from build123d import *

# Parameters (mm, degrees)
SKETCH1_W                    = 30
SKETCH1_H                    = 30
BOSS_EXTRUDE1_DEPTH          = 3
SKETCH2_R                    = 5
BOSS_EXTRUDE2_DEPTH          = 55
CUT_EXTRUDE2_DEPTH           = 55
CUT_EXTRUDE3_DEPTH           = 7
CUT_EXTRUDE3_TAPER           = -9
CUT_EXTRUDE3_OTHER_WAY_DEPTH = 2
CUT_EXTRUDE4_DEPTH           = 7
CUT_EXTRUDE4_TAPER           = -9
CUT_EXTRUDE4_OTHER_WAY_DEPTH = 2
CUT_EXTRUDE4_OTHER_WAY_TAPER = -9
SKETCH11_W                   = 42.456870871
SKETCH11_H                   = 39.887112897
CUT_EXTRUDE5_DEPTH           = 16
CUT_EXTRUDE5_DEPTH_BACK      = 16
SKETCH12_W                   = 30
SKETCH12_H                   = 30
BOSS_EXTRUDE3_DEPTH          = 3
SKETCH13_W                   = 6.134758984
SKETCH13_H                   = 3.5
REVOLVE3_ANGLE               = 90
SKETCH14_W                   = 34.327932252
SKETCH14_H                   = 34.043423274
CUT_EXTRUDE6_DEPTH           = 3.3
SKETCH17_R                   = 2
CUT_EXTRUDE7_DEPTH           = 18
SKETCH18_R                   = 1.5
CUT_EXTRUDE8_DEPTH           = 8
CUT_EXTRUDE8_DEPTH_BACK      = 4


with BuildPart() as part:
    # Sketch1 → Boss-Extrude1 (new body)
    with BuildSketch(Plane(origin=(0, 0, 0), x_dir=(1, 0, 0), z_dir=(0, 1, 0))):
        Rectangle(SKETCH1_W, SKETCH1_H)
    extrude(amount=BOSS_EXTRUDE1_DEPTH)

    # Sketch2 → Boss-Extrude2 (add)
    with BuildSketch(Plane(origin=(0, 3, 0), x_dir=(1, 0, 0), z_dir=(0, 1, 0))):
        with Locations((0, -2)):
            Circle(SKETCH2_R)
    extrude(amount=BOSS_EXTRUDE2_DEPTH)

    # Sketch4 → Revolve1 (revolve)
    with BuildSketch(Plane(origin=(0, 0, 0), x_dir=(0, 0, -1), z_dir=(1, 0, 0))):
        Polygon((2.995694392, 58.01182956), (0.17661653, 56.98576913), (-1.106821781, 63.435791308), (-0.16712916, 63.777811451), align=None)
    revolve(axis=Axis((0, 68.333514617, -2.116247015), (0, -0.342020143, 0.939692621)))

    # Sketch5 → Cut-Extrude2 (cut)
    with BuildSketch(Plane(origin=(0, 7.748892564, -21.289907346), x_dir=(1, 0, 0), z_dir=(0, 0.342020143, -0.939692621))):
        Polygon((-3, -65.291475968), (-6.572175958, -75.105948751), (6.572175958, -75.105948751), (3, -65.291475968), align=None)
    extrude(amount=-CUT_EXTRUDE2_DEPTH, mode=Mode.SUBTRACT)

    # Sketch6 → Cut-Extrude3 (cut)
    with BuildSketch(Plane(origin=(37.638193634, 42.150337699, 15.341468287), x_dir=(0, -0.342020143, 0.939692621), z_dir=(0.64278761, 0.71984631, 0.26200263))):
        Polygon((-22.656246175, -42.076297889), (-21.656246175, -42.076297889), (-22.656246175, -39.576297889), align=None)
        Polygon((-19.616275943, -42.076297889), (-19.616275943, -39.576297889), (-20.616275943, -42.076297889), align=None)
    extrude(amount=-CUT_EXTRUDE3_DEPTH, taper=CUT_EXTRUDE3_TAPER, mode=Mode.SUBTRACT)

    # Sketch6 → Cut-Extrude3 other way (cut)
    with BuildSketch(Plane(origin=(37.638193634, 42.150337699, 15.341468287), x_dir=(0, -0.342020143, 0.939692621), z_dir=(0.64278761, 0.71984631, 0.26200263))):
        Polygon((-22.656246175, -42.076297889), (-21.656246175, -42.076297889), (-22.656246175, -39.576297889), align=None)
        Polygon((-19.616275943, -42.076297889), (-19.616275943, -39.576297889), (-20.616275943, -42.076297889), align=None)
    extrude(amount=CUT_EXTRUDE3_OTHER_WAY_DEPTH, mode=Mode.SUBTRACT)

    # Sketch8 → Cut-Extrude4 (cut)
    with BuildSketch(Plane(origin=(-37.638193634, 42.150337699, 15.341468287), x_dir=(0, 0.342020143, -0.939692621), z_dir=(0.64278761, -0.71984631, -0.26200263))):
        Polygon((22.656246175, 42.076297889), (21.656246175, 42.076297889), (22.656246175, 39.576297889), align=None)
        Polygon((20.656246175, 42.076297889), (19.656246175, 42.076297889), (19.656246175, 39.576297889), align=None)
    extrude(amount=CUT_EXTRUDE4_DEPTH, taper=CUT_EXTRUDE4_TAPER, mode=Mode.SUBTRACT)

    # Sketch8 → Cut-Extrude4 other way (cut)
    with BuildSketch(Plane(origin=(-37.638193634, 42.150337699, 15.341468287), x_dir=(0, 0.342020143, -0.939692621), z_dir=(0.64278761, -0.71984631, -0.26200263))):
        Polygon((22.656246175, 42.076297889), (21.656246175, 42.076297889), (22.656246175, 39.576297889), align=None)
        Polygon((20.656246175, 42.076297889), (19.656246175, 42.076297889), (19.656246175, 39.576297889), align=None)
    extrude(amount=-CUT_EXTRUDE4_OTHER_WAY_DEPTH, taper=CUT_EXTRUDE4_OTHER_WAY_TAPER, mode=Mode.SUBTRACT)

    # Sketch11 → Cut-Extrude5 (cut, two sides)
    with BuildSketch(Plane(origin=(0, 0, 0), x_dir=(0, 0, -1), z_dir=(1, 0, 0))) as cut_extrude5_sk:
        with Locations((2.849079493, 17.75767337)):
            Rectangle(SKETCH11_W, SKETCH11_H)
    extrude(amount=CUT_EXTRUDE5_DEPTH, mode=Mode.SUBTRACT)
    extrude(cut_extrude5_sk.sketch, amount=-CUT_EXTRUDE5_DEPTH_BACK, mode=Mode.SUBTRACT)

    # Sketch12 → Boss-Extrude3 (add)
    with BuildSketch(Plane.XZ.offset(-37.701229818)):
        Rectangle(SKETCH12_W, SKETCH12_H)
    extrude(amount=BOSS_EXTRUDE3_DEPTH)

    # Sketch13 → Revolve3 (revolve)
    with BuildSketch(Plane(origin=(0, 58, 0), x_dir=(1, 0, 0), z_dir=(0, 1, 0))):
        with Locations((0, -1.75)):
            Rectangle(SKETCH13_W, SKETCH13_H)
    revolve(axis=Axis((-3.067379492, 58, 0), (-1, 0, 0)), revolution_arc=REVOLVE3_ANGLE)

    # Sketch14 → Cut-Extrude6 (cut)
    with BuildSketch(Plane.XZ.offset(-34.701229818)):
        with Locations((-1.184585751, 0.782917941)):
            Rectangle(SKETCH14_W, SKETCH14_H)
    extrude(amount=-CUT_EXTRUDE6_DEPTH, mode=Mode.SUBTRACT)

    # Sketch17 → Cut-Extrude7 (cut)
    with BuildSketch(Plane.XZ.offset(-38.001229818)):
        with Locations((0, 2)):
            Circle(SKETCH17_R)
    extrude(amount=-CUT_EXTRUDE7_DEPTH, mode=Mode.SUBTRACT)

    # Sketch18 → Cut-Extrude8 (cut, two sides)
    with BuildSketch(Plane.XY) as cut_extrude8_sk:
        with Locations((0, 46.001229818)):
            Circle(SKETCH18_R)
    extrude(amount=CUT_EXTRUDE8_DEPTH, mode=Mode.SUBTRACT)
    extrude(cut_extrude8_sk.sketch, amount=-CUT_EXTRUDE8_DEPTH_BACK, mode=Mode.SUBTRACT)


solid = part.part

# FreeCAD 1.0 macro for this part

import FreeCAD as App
import Part
import Sketcher

V = App.Vector
Q = App.Units.Quantity

doc = App.newDocument("Part")
body = doc.addObject("PartDesign::Body", "Body")

sketch1 = doc.addObject("Sketcher::SketchObject", "Sketch")
body.addObject(sketch1)
sketch1.AttachmentSupport = (doc.XZ_Plane, [""])
sketch1.MapMode = "FlatFace"
sketch1.addGeometry([
    Part.LineSegment(V(-15, -15, 0), V(-15, 15, 0)),
    Part.LineSegment(V(-15, 15, 0), V(15, 15, 0)),
    Part.LineSegment(V(15, 15, 0), V(15, -15, 0)),
    Part.LineSegment(V(15, -15, 0), V(-15, -15, 0)),
], False)
sketch1.addConstraint([
    Sketcher.Constraint("Coincident", 0, 2, 1, 1),
    Sketcher.Constraint("Coincident", 1, 2, 2, 1),
    Sketcher.Constraint("Coincident", 2, 2, 3, 1),
    Sketcher.Constraint("Coincident", 3, 2, 0, 1),
    Sketcher.Constraint("Vertical", 0),
    Sketcher.Constraint("Horizontal", 1),
    Sketcher.Constraint("Vertical", 2),
    Sketcher.Constraint("Horizontal", 3),
    Sketcher.Constraint("Symmetric", 0, 2, 2, 2, -1, 1),
    Sketcher.Constraint("Equal", 3, 0),
    Sketcher.Constraint("DistanceX", 1, 1, 1, 2, Q("30 mm")),
])
pad1 = doc.addObject("PartDesign::Pad", "Pad")
body.addObject(pad1)
pad1.Profile = sketch1
pad1.Length = 3
pad1.Reversed = True

sketch2 = doc.addObject("Sketcher::SketchObject", "Sketch001")
body.addObject(sketch2)
sketch2.AttachmentSupport = (doc.XZ_Plane, [""])
sketch2.MapMode = "FlatFace"
sketch2.AttachmentOffset = App.Placement(V(0, 0, -3), App.Rotation())
sketch2.addGeometry(Part.Circle(V(0, 2, 0), V(0, 0, 1), 5), False)
sketch2.addConstraint([
    Sketcher.Constraint("PointOnObject", 0, 3, -2),
    Sketcher.Constraint("Diameter", 0, Q("10 mm")),
    Sketcher.Constraint("DistanceY", -1, 1, 0, 3, Q("2 mm")),
])
pad2 = doc.addObject("PartDesign::Pad", "Pad001")
body.addObject(pad2)
pad2.Profile = sketch2
pad2.Length = 55
pad2.Reversed = True

sketch3 = doc.addObject("Sketcher::SketchObject", "Sketch002")
body.addObject(sketch3)
sketch3.AttachmentSupport = (doc.YZ_Plane, [""])
sketch3.MapMode = "FlatFace"
sketch3.addGeometry([
    Part.LineSegment(V(57, -0.2, 0), V(58, -3, 0)),
    Part.LineSegment(V(58, -3, 0), V(63.8, 0.2, 0)),
    Part.LineSegment(V(63.8, 0.2, 0), V(63.4, 1.1, 0)),
    Part.LineSegment(V(63.4, 1.1, 0), V(57, -0.2, 0)),
], False)
sketch3.addGeometry(Part.LineSegment(V(67.4, 0.4, 0), V(66.4, 3.2, 0)), True)
sketch3.addConstraint([
    Sketcher.Constraint("Coincident", 0, 2, 1, 1),
    Sketcher.Constraint("Coincident", 1, 2, 2, 1),
    Sketcher.Constraint("Coincident", 2, 2, 3, 1),
    Sketcher.Constraint("Coincident", 3, 2, 0, 1),
    Sketcher.Constraint("Parallel", 0, 2),
    Sketcher.Constraint("Parallel", 2, 4),
    Sketcher.Constraint("Equal", 1, 3),
    Sketcher.Constraint("Equal", 0, 4),
    Sketcher.Constraint("Angle", 0, Q("-70 deg")),
    Sketcher.Constraint("Distance", 0, Q("3 mm")),
    Sketcher.Constraint("Distance", 2, Q("1 mm")),
    Sketcher.Constraint("DistanceY", 0, 2, 4, 1, Q("3.420201 mm")),
    Sketcher.Constraint("DistanceX", -1, 1, 0, 2, Q("58.01183 mm")),
    Sketcher.Constraint("DistanceX", -1, 1, 1, 2, Q("63.777811 mm")),
    Sketcher.Constraint("DistanceY", -1, 1, 1, 2, Q("0.167129 mm")),
    Sketcher.Constraint("DistanceX", -1, 1, 4, 1, Q("67.408756 mm")),
])
revolution = doc.addObject("PartDesign::Revolution", "Revolution")
body.addObject(revolution)
revolution.Profile = sketch3
revolution.ReferenceAxis = (sketch3, ["Axis0"])
revolution.Angle = 360

sketch4 = doc.addObject("Sketcher::SketchObject", "Sketch003")
body.addObject(sketch4)
sketch4.Placement = App.Placement(V(0, 7.748893, -21.289907), App.Rotation(V(1, 0, 0), V(0, -0.939692621, -0.342020143), V(0, 0.342020143, -0.939692621), "ZXY"))
sketch4.addGeometry([
    Part.LineSegment(V(-3, -65, 0), V(-7, -75, 0)),
    Part.LineSegment(V(-7, -75, 0), V(7, -75, 0)),
    Part.LineSegment(V(7, -75, 0), V(3, -65, 0)),
    Part.LineSegment(V(3, -65, 0), V(-3, -65, 0)),
], False)
sketch4.addConstraint([
    Sketcher.Constraint("Coincident", 0, 2, 1, 1),
    Sketcher.Constraint("Coincident", 1, 2, 2, 1),
    Sketcher.Constraint("Coincident", 2, 2, 3, 1),
    Sketcher.Constraint("Coincident", 3, 2, 0, 1),
    Sketcher.Constraint("Horizontal", 1),
    Sketcher.Constraint("Horizontal", 3),
    Sketcher.Constraint("Equal", 0, 2),
    Sketcher.Constraint("DistanceX", 3, 2, 3, 1, Q("6 mm")),
    Sketcher.Constraint("Angle", 0, Q("-110 deg")),
    Sketcher.Constraint("DistanceX", -1, 1, 2, 2, Q("3 mm")),
    Sketcher.Constraint("DistanceX", 1, 1, 1, 2, Q("13.144352 mm")),
    Sketcher.Constraint("DistanceY", 0, 2, -1, 1, Q("75.105949 mm")),
])
pocket1 = doc.addObject("PartDesign::Pocket", "Pocket")
body.addObject(pocket1)
pocket1.Profile = sketch4
pocket1.Length = 55

sketch5 = doc.addObject("Sketcher::SketchObject", "Sketch004")
body.addObject(sketch5)
sketch5.Placement = App.Placement(V(37.638194, 42.150338, 15.341468), App.Rotation(V(0, -0.342020143, 0.939692621), V(0.766044443, -0.604022774, -0.21984631), V(0.64278761, 0.71984631, 0.26200263), "ZXY"))
sketch5.addGeometry([
    Part.LineSegment(V(-22.7, -42.1, 0), V(-21.7, -42.1, 0)),
    Part.LineSegment(V(-21.7, -42.1, 0), V(-22.7, -39.6, 0)),
    Part.LineSegment(V(-22.7, -39.6, 0), V(-22.7, -42.1, 0)),
    Part.LineSegment(V(-19.6, -42.1, 0), V(-19.6, -39.6, 0)),
    Part.LineSegment(V(-19.6, -39.6, 0), V(-20.6, -42.1, 0)),
    Part.LineSegment(V(-20.6, -42.1, 0), V(-19.6, -42.1, 0)),
], False)
sketch5.addConstraint([
    Sketcher.Constraint("Coincident", 0, 2, 1, 1),
    Sketcher.Constraint("Coincident", 1, 2, 2, 1),
    Sketcher.Constraint("Coincident", 2, 2, 0, 1),
    Sketcher.Constraint("Coincident", 3, 2, 4, 1),
    Sketcher.Constraint("Coincident", 4, 2, 5, 1),
    Sketcher.Constraint("Coincident", 5, 2, 3, 1),
    Sketcher.Constraint("Horizontal", 0),
    Sketcher.Constraint("Vertical", 2),
    Sketcher.Constraint("Vertical", 3),
    Sketcher.Constraint("Horizontal", 5),
    Sketcher.Constraint("Horizontal", 1, 2, 3, 2),
    Sketcher.Constraint("Horizontal", 2, 2, 4, 2),
    Sketcher.Constraint("Equal", 0, 5),
    Sketcher.Constraint("DistanceX", 0, 1, 0, 2, Q("1 mm")),
    Sketcher.Constraint("DistanceY", 2, 2, 2, 1, Q("2.5 mm")),
    Sketcher.Constraint("DistanceX", 1, 2, 3, 2, Q("3.03997 mm")),
    Sketcher.Constraint("DistanceX", 0, 2, -1, 1, Q("21.656246 mm")),
    Sketcher.Constraint("DistanceY", 0, 2, -1, 1, Q("42.076298 mm")),
])
pocket2 = doc.addObject("PartDesign::Pocket", "Pocket001")
body.addObject(pocket2)
pocket2.Profile = sketch5
pocket2.Length = 7
pocket2.TaperAngle = 9

sketch6 = doc.addObject("Sketcher::SketchObject", "Sketch005")
body.addObject(sketch6)
sketch6.Placement = App.Placement(V(37.638194, 42.150338, 15.341468), App.Rotation(V(0, -0.342020143, 0.939692621), V(0.766044443, -0.604022774, -0.21984631), V(0.64278761, 0.71984631, 0.26200263), "ZXY"))
sketch6.addGeometry([
    Part.LineSegment(V(-22.7, -42.1, 0), V(-21.7, -42.1, 0)),
    Part.LineSegment(V(-21.7, -42.1, 0), V(-22.7, -39.6, 0)),
    Part.LineSegment(V(-22.7, -39.6, 0), V(-22.7, -42.1, 0)),
    Part.LineSegment(V(-19.6, -42.1, 0), V(-19.6, -39.6, 0)),
    Part.LineSegment(V(-19.6, -39.6, 0), V(-20.6, -42.1, 0)),
    Part.LineSegment(V(-20.6, -42.1, 0), V(-19.6, -42.1, 0)),
], False)
sketch6.addConstraint([
    Sketcher.Constraint("Coincident", 0, 2, 1, 1),
    Sketcher.Constraint("Coincident", 1, 2, 2, 1),
    Sketcher.Constraint("Coincident", 2, 2, 0, 1),
    Sketcher.Constraint("Coincident", 3, 2, 4, 1),
    Sketcher.Constraint("Coincident", 4, 2, 5, 1),
    Sketcher.Constraint("Coincident", 5, 2, 3, 1),
    Sketcher.Constraint("Horizontal", 0),
    Sketcher.Constraint("Vertical", 2),
    Sketcher.Constraint("Vertical", 3),
    Sketcher.Constraint("Horizontal", 5),
    Sketcher.Constraint("Horizontal", 1, 2, 3, 2),
    Sketcher.Constraint("Horizontal", 2, 2, 4, 2),
    Sketcher.Constraint("Equal", 0, 5),
    Sketcher.Constraint("DistanceX", 0, 1, 0, 2, Q("1 mm")),
    Sketcher.Constraint("DistanceY", 2, 2, 2, 1, Q("2.5 mm")),
    Sketcher.Constraint("DistanceX", 1, 2, 3, 2, Q("3.03997 mm")),
    Sketcher.Constraint("DistanceX", 0, 2, -1, 1, Q("21.656246 mm")),
    Sketcher.Constraint("DistanceY", 0, 2, -1, 1, Q("42.076298 mm")),
])
pocket3 = doc.addObject("PartDesign::Pocket", "Pocket002")
body.addObject(pocket3)
pocket3.Profile = sketch6
pocket3.Length = 2
pocket3.Reversed = True

sketch7 = doc.addObject("Sketcher::SketchObject", "Sketch006")
body.addObject(sketch7)
sketch7.Placement = App.Placement(V(-37.638194, 42.150338, 15.341468), App.Rotation(V(0, 0.342020143, -0.939692621), V(0.766044443, 0.604022774, 0.21984631), V(0.64278761, -0.71984631, -0.26200263), "ZXY"))
sketch7.addGeometry([
    Part.LineSegment(V(22.7, 42.1, 0), V(21.7, 42.1, 0)),
    Part.LineSegment(V(21.7, 42.1, 0), V(22.7, 39.6, 0)),
    Part.LineSegment(V(22.7, 39.6, 0), V(22.7, 42.1, 0)),
    Part.LineSegment(V(20.7, 42.1, 0), V(19.7, 42.1, 0)),
    Part.LineSegment(V(19.7, 42.1, 0), V(19.7, 39.6, 0)),
    Part.LineSegment(V(19.7, 39.6, 0), V(20.7, 42.1, 0)),
], False)
sketch7.addConstraint([
    Sketcher.Constraint("Coincident", 0, 2, 1, 1),
    Sketcher.Constraint("Coincident", 1, 2, 2, 1),
    Sketcher.Constraint("Coincident", 2, 2, 0, 1),
    Sketcher.Constraint("Coincident", 3, 2, 4, 1),
    Sketcher.Constraint("Coincident", 4, 2, 5, 1),
    Sketcher.Constraint("Coincident", 5, 2, 3, 1),
    Sketcher.Constraint("Horizontal", 0),
    Sketcher.Constraint("Vertical", 2),
    Sketcher.Constraint("Horizontal", 3),
    Sketcher.Constraint("Vertical", 4),
    Sketcher.Constraint("Horizontal", 2, 2, 3, 2),
    Sketcher.Constraint("Horizontal", 1, 2, 4, 2),
    Sketcher.Constraint("Equal", 0, 3),
    Sketcher.Constraint("DistanceX", 0, 2, 0, 1, Q("1 mm")),
    Sketcher.Constraint("DistanceY", 2, 1, 2, 2, Q("2.5 mm")),
    Sketcher.Constraint("DistanceX", 3, 2, 0, 2, Q("2 mm")),
    Sketcher.Constraint("DistanceX", -1, 1, 0, 2, Q("21.656246 mm")),
    Sketcher.Constraint("DistanceY", -1, 1, 0, 2, Q("42.076298 mm")),
])
pocket4 = doc.addObject("PartDesign::Pocket", "Pocket003")
body.addObject(pocket4)
pocket4.Profile = sketch7
pocket4.Length = 7
pocket4.Reversed = True
pocket4.TaperAngle = 9

sketch8 = doc.addObject("Sketcher::SketchObject", "Sketch007")
body.addObject(sketch8)
sketch8.Placement = App.Placement(V(-37.638194, 42.150338, 15.341468), App.Rotation(V(0, 0.342020143, -0.939692621), V(0.766044443, 0.604022774, 0.21984631), V(0.64278761, -0.71984631, -0.26200263), "ZXY"))
sketch8.addGeometry([
    Part.LineSegment(V(22.7, 42.1, 0), V(21.7, 42.1, 0)),
    Part.LineSegment(V(21.7, 42.1, 0), V(22.7, 39.6, 0)),
    Part.LineSegment(V(22.7, 39.6, 0), V(22.7, 42.1, 0)),
    Part.LineSegment(V(20.7, 42.1, 0), V(19.7, 42.1, 0)),
    Part.LineSegment(V(19.7, 42.1, 0), V(19.7, 39.6, 0)),
    Part.LineSegment(V(19.7, 39.6, 0), V(20.7, 42.1, 0)),
], False)
sketch8.addConstraint([
    Sketcher.Constraint("Coincident", 0, 2, 1, 1),
    Sketcher.Constraint("Coincident", 1, 2, 2, 1),
    Sketcher.Constraint("Coincident", 2, 2, 0, 1),
    Sketcher.Constraint("Coincident", 3, 2, 4, 1),
    Sketcher.Constraint("Coincident", 4, 2, 5, 1),
    Sketcher.Constraint("Coincident", 5, 2, 3, 1),
    Sketcher.Constraint("Horizontal", 0),
    Sketcher.Constraint("Vertical", 2),
    Sketcher.Constraint("Horizontal", 3),
    Sketcher.Constraint("Vertical", 4),
    Sketcher.Constraint("Horizontal", 2, 2, 3, 2),
    Sketcher.Constraint("Horizontal", 1, 2, 4, 2),
    Sketcher.Constraint("Equal", 0, 3),
    Sketcher.Constraint("DistanceX", 0, 2, 0, 1, Q("1 mm")),
    Sketcher.Constraint("DistanceY", 2, 1, 2, 2, Q("2.5 mm")),
    Sketcher.Constraint("DistanceX", 3, 2, 0, 2, Q("2 mm")),
    Sketcher.Constraint("DistanceX", -1, 1, 0, 2, Q("21.656246 mm")),
    Sketcher.Constraint("DistanceY", -1, 1, 0, 2, Q("42.076298 mm")),
])
pocket5 = doc.addObject("PartDesign::Pocket", "Pocket004")
body.addObject(pocket5)
pocket5.Profile = sketch8
pocket5.Length = 2
pocket5.TaperAngle = 9

sketch9 = doc.addObject("Sketcher::SketchObject", "Sketch008")
body.addObject(sketch9)
sketch9.AttachmentSupport = (doc.YZ_Plane, [""])
sketch9.MapMode = "FlatFace"
sketch9.addGeometry([
    Part.LineSegment(V(38, 18, 0), V(-2, 18, 0)),
    Part.LineSegment(V(-2, 18, 0), V(-2, -24, 0)),
    Part.LineSegment(V(-2, -24, 0), V(38, -24, 0)),
    Part.LineSegment(V(38, -24, 0), V(38, 18, 0)),
], False)
sketch9.addConstraint([
    Sketcher.Constraint("Coincident", 0, 2, 1, 1),
    Sketcher.Constraint("Coincident", 1, 2, 2, 1),
    Sketcher.Constraint("Coincident", 2, 2, 3, 1),
    Sketcher.Constraint("Coincident", 3, 2, 0, 1),
    Sketcher.Constraint("Horizontal", 0),
    Sketcher.Constraint("Vertical", 1),
    Sketcher.Constraint("Horizontal", 2),
    Sketcher.Constraint("Vertical", 3),
    Sketcher.Constraint("DistanceY", 1, 2, 1, 1, Q("42.456871 mm")),
    Sketcher.Constraint("DistanceX", 0, 2, 0, 1, Q("39.887113 mm")),
    Sketcher.Constraint("DistanceX", -1, 1, 2, 2, Q("37.70123 mm")),
    Sketcher.Constraint("DistanceY", -1, 1, 0, 2, Q("18.379356 mm")),
])
pocket6 = doc.addObject("PartDesign::Pocket", "Pocket005")
body.addObject(pocket6)
pocket6.Profile = sketch9
pocket6.Type = "ThroughAll"
pocket6.Midplane = True

sketch10 = doc.addObject("Sketcher::SketchObject", "Sketch009")
body.addObject(sketch10)
sketch10.AttachmentSupport = (doc.XZ_Plane, [""])
sketch10.MapMode = "FlatFace"
sketch10.AttachmentOffset = App.Placement(V(0, 0, -37.70123), App.Rotation())
sketch10.addGeometry([
    Part.LineSegment(V(-15, 15, 0), V(-15, -15, 0)),
    Part.LineSegment(V(-15, -15, 0), V(15, -15, 0)),
    Part.LineSegment(V(15, -15, 0), V(15, 15, 0)),
    Part.LineSegment(V(15, 15, 0), V(-15, 15, 0)),
], False)
sketch10.addConstraint([
    Sketcher.Constraint("Coincident", 0, 2, 1, 1),
    Sketcher.Constraint("Coincident", 1, 2, 2, 1),
    Sketcher.Constraint("Coincident", 2, 2, 3, 1),
    Sketcher.Constraint("Coincident", 3, 2, 0, 1),
    Sketcher.Constraint("Vertical", 0),
    Sketcher.Constraint("Horizontal", 1),
    Sketcher.Constraint("Vertical", 2),
    Sketcher.Constraint("Horizontal", 3),
    Sketcher.Constraint("Symmetric", 0, 2, 2, 2, -1, 1),
    Sketcher.Constraint("Equal", 3, 0),
    Sketcher.Constraint("DistanceX", 1, 1, 1, 2, Q("30 mm")),
])
pad3 = doc.addObject("PartDesign::Pad", "Pad002")
body.addObject(pad3)
pad3.Profile = sketch10
pad3.Length = 3

sketch11 = doc.addObject("Sketcher::SketchObject", "Sketch010")
body.addObject(sketch11)
sketch11.AttachmentSupport = (doc.XZ_Plane, [""])
sketch11.MapMode = "FlatFace"
sketch11.AttachmentOffset = App.Placement(V(0, 0, -58), App.Rotation())
sketch11.addGeometry([
    Part.LineSegment(V(-3.1, 0, 0), V(-3.1, 3.5, 0)),
    Part.LineSegment(V(-3.1, 3.5, 0), V(3.1, 3.5, 0)),
    Part.LineSegment(V(3.1, 3.5, 0), V(3.1, 0, 0)),
    Part.LineSegment(V(3.1, 0, 0), V(-3.1, 0, 0)),
], False)
sketch11.addConstraint([
    Sketcher.Constraint("Coincident", 0, 2, 1, 1),
    Sketcher.Constraint("Coincident", 1, 2, 2, 1),
    Sketcher.Constraint("Coincident", 2, 2, 3, 1),
    Sketcher.Constraint("Coincident", 3, 2, 0, 1),
    Sketcher.Constraint("Vertical", 0),
    Sketcher.Constraint("Horizontal", 1),
    Sketcher.Constraint("Vertical", 2),
    Sketcher.Constraint("Horizontal", 3),
    Sketcher.Constraint("Symmetric", 2, 2, 3, 2, -1, 1),
    Sketcher.Constraint("DistanceY", 0, 1, 0, 2, Q("3.5 mm")),
    Sketcher.Constraint("DistanceX", 1, 1, 1, 2, Q("6.134759 mm")),
])
revolution2 = doc.addObject("PartDesign::Revolution", "Revolution001")
body.addObject(revolution2)
revolution2.Profile = sketch11
revolution2.ReferenceAxis = (sketch11, ["H_Axis"])
revolution2.Angle = 90
revolution2.Reversed = True

sketch12 = doc.addObject("Sketcher::SketchObject", "Sketch011")
body.addObject(sketch12)
sketch12.AttachmentSupport = (doc.XZ_Plane, [""])
sketch12.MapMode = "FlatFace"
sketch12.AttachmentOffset = App.Placement(V(0, 0, -34.70123), App.Rotation())
sketch12.addGeometry([
    Part.LineSegment(V(-18, 18, 0), V(-18, -16, 0)),
    Part.LineSegment(V(-18, -16, 0), V(16, -16, 0)),
    Part.LineSegment(V(16, -16, 0), V(16, 18, 0)),
    Part.LineSegment(V(16, 18, 0), V(-18, 18, 0)),
], False)
sketch12.addConstraint([
    Sketcher.Constraint("Coincident", 0, 2, 1, 1),
    Sketcher.Constraint("Coincident", 1, 2, 2, 1),
    Sketcher.Constraint("Coincident", 2, 2, 3, 1),
    Sketcher.Constraint("Coincident", 3, 2, 0, 1),
    Sketcher.Constraint("Vertical", 0),
    Sketcher.Constraint("Horizontal", 1),
    Sketcher.Constraint("Vertical", 2),
    Sketcher.Constraint("Horizontal", 3),
    Sketcher.Constraint("DistanceX", 1, 1, 1, 2, Q("34.327932 mm")),
    Sketcher.Constraint("DistanceY", 0, 2, 0, 1, Q("34.043423 mm")),
    Sketcher.Constraint("DistanceX", 0, 2, -1, 1, Q("18.348552 mm")),
    Sketcher.Constraint("DistanceY", -1, 1, 2, 2, Q("17.80463 mm")),
])
pocket7 = doc.addObject("PartDesign::Pocket", "Pocket006")
body.addObject(pocket7)
pocket7.Profile = sketch12
pocket7.Length = 3.3

sketch13 = doc.addObject("Sketcher::SketchObject", "Sketch012")
body.addObject(sketch13)
sketch13.AttachmentSupport = (doc.XZ_Plane, [""])
sketch13.MapMode = "FlatFace"
sketch13.AttachmentOffset = App.Placement(V(0, 0, -38.00123), App.Rotation())
sketch13.addGeometry(Part.Circle(V(0, 2, 0), V(0, 0, 1), 2), False)
sketch13.addConstraint([
    Sketcher.Constraint("PointOnObject", 0, 3, -2),
    Sketcher.Constraint("Diameter", 0, Q("4 mm")),
    Sketcher.Constraint("DistanceY", -1, 1, 0, 3, Q("2 mm")),
])
pocket8 = doc.addObject("PartDesign::Pocket", "Pocket007")
body.addObject(pocket8)
pocket8.Profile = sketch13
pocket8.Length = 18

sketch14 = doc.addObject("Sketcher::SketchObject", "Sketch013")
body.addObject(sketch14)
sketch14.AttachmentSupport = (doc.XY_Plane, [""])
sketch14.MapMode = "FlatFace"
sketch14.addGeometry(Part.Circle(V(0, 46, 0), V(0, 0, 1), 1.5), False)
sketch14.addConstraint([
    Sketcher.Constraint("PointOnObject", 0, 3, -2),
    Sketcher.Constraint("Diameter", 0, Q("3 mm")),
    Sketcher.Constraint("DistanceY", -1, 1, 0, 3, Q("46.00123 mm")),
])
pocket9 = doc.addObject("PartDesign::Pocket", "Pocket008")
body.addObject(pocket9)
pocket9.Profile = sketch14
pocket9.Type = "ThroughAll"
pocket9.Midplane = True

doc.recompute()
